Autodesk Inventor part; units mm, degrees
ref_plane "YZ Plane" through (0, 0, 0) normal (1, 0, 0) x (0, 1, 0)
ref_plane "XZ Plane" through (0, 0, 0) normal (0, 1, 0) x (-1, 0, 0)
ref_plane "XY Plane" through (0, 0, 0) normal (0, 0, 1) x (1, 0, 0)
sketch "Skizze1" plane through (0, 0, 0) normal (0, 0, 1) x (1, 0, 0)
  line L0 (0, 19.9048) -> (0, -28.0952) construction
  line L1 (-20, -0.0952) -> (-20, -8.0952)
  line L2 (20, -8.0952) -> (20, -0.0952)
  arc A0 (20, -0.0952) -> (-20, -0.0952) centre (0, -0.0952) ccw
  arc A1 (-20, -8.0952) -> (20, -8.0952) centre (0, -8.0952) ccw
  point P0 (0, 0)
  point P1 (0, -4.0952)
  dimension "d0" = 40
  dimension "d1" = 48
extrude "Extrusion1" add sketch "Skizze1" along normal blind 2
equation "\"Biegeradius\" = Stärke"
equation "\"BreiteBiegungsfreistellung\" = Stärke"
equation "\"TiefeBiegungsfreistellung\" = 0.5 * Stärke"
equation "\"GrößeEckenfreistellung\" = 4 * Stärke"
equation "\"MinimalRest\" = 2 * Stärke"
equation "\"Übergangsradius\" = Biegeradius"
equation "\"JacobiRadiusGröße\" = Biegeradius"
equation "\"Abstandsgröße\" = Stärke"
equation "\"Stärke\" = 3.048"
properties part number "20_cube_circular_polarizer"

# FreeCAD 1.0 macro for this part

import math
import FreeCAD as App
import Part
import Sketcher

doc = App.newDocument("Part")
body = doc.addObject("PartDesign::Body", "Body")

# Sketch on XY plane
sketch1 = body.newObject("Sketcher::SketchObject", "Sketch")
sketch1.AttachmentSupport = (doc.getObject("XY_Plane"), [""])
sketch1.MapMode = "FlatFace"
sketch1.addGeometry([
    Part.ArcOfCircle(Part.Circle(App.Vector(0, 0, 0), App.Vector(0, 0, 1), 20), math.radians(0), math.radians(180)),
    Part.LineSegment(App.Vector(-20, 0, 0), App.Vector(-20, -8, 0)),
    Part.ArcOfCircle(Part.Circle(App.Vector(0, -8, 0), App.Vector(0, 0, 1), 20), math.radians(180), math.radians(360)),
    Part.LineSegment(App.Vector(20, -8, 0), App.Vector(20, 0, 0)),
], False)
sketch1.addConstraint([
    Sketcher.Constraint("Tangent", 0, 2, 1, 1),
    Sketcher.Constraint("Tangent", 1, 2, 2, 1),
    Sketcher.Constraint("Tangent", 2, 2, 3, 1),
    Sketcher.Constraint("Tangent", 3, 2, 0, 1),
    Sketcher.Constraint("Vertical", 1),
    Sketcher.Constraint("Vertical", 3),
    Sketcher.Constraint("PointOnObject", 0, 3, -2),
    Sketcher.Constraint("Radius", 0, 20.0),
    Sketcher.Constraint("DistanceY", 1, 2, 1, 1, 8.0),
    Sketcher.Constraint("DistanceY", 0, 3, -1, 1, 0.0952),
])
pad1 = body.newObject("PartDesign::Pad", "Pad")
pad1.Profile = sketch1
pad1.Length = 2

doc.recompute()
